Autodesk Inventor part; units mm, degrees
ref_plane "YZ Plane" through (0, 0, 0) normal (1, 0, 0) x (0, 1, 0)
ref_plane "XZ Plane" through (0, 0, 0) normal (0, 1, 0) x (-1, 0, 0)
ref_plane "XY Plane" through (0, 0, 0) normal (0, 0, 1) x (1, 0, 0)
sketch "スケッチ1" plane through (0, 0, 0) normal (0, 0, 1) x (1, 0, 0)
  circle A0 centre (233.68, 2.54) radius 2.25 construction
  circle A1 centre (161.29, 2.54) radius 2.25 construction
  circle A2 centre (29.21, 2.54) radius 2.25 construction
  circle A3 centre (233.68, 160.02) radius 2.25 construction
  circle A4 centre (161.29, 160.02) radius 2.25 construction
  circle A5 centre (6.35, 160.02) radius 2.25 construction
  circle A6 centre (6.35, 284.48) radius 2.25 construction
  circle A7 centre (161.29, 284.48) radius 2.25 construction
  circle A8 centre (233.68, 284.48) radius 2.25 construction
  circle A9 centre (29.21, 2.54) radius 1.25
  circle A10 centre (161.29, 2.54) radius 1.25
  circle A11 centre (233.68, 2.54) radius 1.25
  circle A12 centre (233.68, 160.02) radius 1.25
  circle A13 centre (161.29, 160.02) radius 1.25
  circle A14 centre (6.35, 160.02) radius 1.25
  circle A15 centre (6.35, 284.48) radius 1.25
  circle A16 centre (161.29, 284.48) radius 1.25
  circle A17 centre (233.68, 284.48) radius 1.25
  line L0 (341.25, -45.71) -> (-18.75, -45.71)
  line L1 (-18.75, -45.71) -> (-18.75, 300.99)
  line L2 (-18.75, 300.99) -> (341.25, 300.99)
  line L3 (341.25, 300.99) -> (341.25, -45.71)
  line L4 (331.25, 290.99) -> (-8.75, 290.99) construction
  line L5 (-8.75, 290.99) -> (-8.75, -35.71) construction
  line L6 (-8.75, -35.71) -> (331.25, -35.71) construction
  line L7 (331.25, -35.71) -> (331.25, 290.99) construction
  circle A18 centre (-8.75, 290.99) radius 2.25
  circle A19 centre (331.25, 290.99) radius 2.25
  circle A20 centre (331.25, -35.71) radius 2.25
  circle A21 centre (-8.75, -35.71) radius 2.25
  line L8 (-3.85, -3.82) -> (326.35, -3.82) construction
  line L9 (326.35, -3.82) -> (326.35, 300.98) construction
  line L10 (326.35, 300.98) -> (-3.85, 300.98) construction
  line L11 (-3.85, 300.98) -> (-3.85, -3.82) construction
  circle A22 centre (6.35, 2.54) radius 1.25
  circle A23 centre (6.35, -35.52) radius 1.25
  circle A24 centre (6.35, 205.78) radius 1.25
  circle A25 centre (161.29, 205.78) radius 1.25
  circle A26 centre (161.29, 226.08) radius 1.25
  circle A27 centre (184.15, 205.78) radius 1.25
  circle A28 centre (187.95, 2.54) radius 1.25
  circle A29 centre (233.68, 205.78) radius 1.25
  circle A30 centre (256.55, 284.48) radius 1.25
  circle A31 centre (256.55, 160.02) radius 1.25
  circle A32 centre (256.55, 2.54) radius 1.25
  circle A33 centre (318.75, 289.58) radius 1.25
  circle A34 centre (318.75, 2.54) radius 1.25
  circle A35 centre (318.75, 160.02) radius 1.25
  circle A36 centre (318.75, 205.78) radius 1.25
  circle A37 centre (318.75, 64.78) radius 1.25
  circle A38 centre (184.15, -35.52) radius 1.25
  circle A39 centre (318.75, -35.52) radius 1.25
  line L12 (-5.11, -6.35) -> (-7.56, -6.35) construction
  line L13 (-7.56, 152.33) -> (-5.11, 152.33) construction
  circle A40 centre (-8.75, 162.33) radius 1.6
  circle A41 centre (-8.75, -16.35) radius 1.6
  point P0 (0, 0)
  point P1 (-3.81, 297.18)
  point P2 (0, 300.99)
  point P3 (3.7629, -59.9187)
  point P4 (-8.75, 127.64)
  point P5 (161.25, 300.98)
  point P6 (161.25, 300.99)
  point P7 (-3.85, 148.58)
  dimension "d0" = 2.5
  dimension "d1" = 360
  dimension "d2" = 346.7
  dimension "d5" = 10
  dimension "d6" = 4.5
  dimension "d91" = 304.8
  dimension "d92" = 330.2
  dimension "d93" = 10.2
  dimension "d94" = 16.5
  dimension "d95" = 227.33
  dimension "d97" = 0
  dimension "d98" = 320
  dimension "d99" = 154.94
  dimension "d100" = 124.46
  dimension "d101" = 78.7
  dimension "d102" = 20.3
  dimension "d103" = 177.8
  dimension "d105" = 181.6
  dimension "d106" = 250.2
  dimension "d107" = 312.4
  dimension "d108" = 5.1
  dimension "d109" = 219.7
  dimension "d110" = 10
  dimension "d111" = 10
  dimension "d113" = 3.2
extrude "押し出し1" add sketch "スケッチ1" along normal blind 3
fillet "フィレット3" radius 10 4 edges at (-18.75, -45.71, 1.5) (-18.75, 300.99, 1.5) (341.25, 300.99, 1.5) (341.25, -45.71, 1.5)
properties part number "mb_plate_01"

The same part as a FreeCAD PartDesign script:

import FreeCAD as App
import Part
import Sketcher

V = App.Vector
Q = App.Units.Quantity


def edges_at(feature, points):
    """Names of the edges that pass closest to the given points."""
    edges = feature.Shape.Edges
    near = lambda p: min(range(len(edges)), key=lambda i: edges[i].distToShape(Part.Vertex(*p))[0])
    return sorted({f"Edge{near(p) + 1}" for p in points})

doc = App.newDocument("Part")
body = doc.addObject("PartDesign::Body", "Body")

# Sketch on XY plane
sketch1 = body.newObject("Sketcher::SketchObject", "Sketch")
sketch1.AttachmentSupport = (doc.getObject("XY_Plane"), [""])
sketch1.MapMode = "FlatFace"
sketch1.addGeometry(Part.LineSegment(V(-18.8, -45.7, 0), V(341.2, -45.7, 0)), False)
sketch1.addGeometry(Part.LineSegment(V(341.2, -45.7, 0), V(341.2, 301, 0)), False)
sketch1.addGeometry(Part.LineSegment(V(341.2, 301, 0), V(-18.8, 301, 0)), False)
sketch1.addGeometry(Part.LineSegment(V(-18.8, 301, 0), V(-18.8, -45.7, 0)), False)
sketch1.addGeometry(Part.Circle(V(-8.8, -35.7, 0), V(0, 0, 1), 2.2), False)
sketch1.addGeometry(Part.Circle(V(6.3, -35.5, 0), V(0, 0, 1), 1.2), False)
sketch1.addGeometry(Part.Circle(V(-8.8, -16.4, 0), V(0, 0, 1), 1.6), False)
sketch1.addGeometry(Part.Circle(V(6.3, 2.5, 0), V(0, 0, 1), 1.2), False)
sketch1.addGeometry(Part.Circle(V(29.2, 2.5, 0), V(0, 0, 1), 1.2), False)
sketch1.addGeometry(Part.Circle(V(184.2, -35.5, 0), V(0, 0, 1), 1.2), False)
sketch1.addGeometry(Part.Circle(V(161.3, 2.5, 0), V(0, 0, 1), 1.2), False)
sketch1.addGeometry(Part.Circle(V(187.9, 2.5, 0), V(0, 0, 1), 1.2), False)
sketch1.addGeometry(Part.Circle(V(233.7, 2.5, 0), V(0, 0, 1), 1.2), False)
sketch1.addGeometry(Part.Circle(V(318.8, -35.5, 0), V(0, 0, 1), 1.2), False)
sketch1.addGeometry(Part.Circle(V(331.2, -35.7, 0), V(0, 0, 1), 2.2), False)
sketch1.addGeometry(Part.Circle(V(256.6, 2.5, 0), V(0, 0, 1), 1.2), False)
sketch1.addGeometry(Part.Circle(V(318.8, 2.5, 0), V(0, 0, 1), 1.2), False)
sketch1.addGeometry(Part.Circle(V(318.8, 64.8, 0), V(0, 0, 1), 1.2), False)
sketch1.addGeometry(Part.Circle(V(-8.8, 162.3, 0), V(0, 0, 1), 1.6), False)
sketch1.addGeometry(Part.Circle(V(6.3, 160, 0), V(0, 0, 1), 1.2), False)
sketch1.addGeometry(Part.Circle(V(6.3, 205.8, 0), V(0, 0, 1), 1.2), False)
sketch1.addGeometry(Part.Circle(V(-8.8, 291, 0), V(0, 0, 1), 2.2), False)
sketch1.addGeometry(Part.Circle(V(6.3, 284.5, 0), V(0, 0, 1), 1.2), False)
sketch1.addGeometry(Part.Circle(V(161.3, 160, 0), V(0, 0, 1), 1.2), False)
sketch1.addGeometry(Part.Circle(V(233.7, 160, 0), V(0, 0, 1), 1.2), False)
sketch1.addGeometry(Part.Circle(V(161.3, 205.8, 0), V(0, 0, 1), 1.2), False)
sketch1.addGeometry(Part.Circle(V(184.2, 205.8, 0), V(0, 0, 1), 1.2), False)
sketch1.addGeometry(Part.Circle(V(233.7, 205.8, 0), V(0, 0, 1), 1.2), False)
sketch1.addGeometry(Part.Circle(V(256.6, 160, 0), V(0, 0, 1), 1.2), False)
sketch1.addGeometry(Part.Circle(V(318.8, 160, 0), V(0, 0, 1), 1.2), False)
sketch1.addGeometry(Part.Circle(V(318.8, 205.8, 0), V(0, 0, 1), 1.2), False)
sketch1.addGeometry(Part.Circle(V(161.3, 226.1, 0), V(0, 0, 1), 1.2), False)
sketch1.addGeometry(Part.Circle(V(161.3, 284.5, 0), V(0, 0, 1), 1.2), False)
sketch1.addGeometry(Part.Circle(V(233.7, 284.5, 0), V(0, 0, 1), 1.2), False)
sketch1.addGeometry(Part.Circle(V(256.6, 284.5, 0), V(0, 0, 1), 1.2), False)
sketch1.addGeometry(Part.Circle(V(318.8, 289.6, 0), V(0, 0, 1), 1.2), False)
sketch1.addGeometry(Part.Circle(V(331.2, 291, 0), V(0, 0, 1), 2.2), False)
sketch1.addConstraint(Sketcher.Constraint("Coincident", 0, 2, 1, 1))
sketch1.addConstraint(Sketcher.Constraint("Coincident", 1, 2, 2, 1))
sketch1.addConstraint(Sketcher.Constraint("Coincident", 2, 2, 3, 1))
sketch1.addConstraint(Sketcher.Constraint("Coincident", 3, 2, 0, 1))
sketch1.addConstraint(Sketcher.Constraint("Horizontal", 0))
sketch1.addConstraint(Sketcher.Constraint("Vertical", 1))
sketch1.addConstraint(Sketcher.Constraint("Horizontal", 2))
sketch1.addConstraint(Sketcher.Constraint("Vertical", 3))
sketch1.addConstraint(Sketcher.Constraint("Equal", 5, 7))
sketch1.addConstraint(Sketcher.Constraint("Equal", 7, 8))
sketch1.addConstraint(Sketcher.Constraint("Equal", 8, 9))
sketch1.addConstraint(Sketcher.Constraint("Equal", 9, 10))
sketch1.addConstraint(Sketcher.Constraint("Equal", 10, 11))
sketch1.addConstraint(Sketcher.Constraint("Equal", 11, 12))
sketch1.addConstraint(Sketcher.Constraint("Equal", 12, 13))
sketch1.addConstraint(Sketcher.Constraint("Equal", 4, 14))
sketch1.addConstraint(Sketcher.Constraint("Equal", 13, 15))
sketch1.addConstraint(Sketcher.Constraint("Equal", 15, 16))
sketch1.addConstraint(Sketcher.Constraint("Equal", 16, 17))
sketch1.addConstraint(Sketcher.Constraint("Equal", 6, 18))
sketch1.addConstraint(Sketcher.Constraint("Equal", 17, 19))
sketch1.addConstraint(Sketcher.Constraint("Equal", 19, 20))
sketch1.addConstraint(Sketcher.Constraint("Equal", 14, 21))
sketch1.addConstraint(Sketcher.Constraint("Equal", 20, 22))
sketch1.addConstraint(Sketcher.Constraint("Equal", 22, 23))
sketch1.addConstraint(Sketcher.Constraint("Equal", 23, 24))
sketch1.addConstraint(Sketcher.Constraint("Equal", 24, 25))
sketch1.addConstraint(Sketcher.Constraint("Equal", 25, 26))
sketch1.addConstraint(Sketcher.Constraint("Equal", 26, 27))
sketch1.addConstraint(Sketcher.Constraint("Equal", 27, 28))
sketch1.addConstraint(Sketcher.Constraint("Equal", 28, 29))
sketch1.addConstraint(Sketcher.Constraint("Equal", 29, 30))
sketch1.addConstraint(Sketcher.Constraint("Equal", 30, 31))
sketch1.addConstraint(Sketcher.Constraint("Equal", 31, 32))
sketch1.addConstraint(Sketcher.Constraint("Equal", 32, 33))
sketch1.addConstraint(Sketcher.Constraint("Equal", 33, 34))
sketch1.addConstraint(Sketcher.Constraint("Equal", 34, 35))
sketch1.addConstraint(Sketcher.Constraint("Equal", 21, 36))
sketch1.addConstraint(Sketcher.Constraint("Horizontal", 7, 3, 8, 3))
sketch1.addConstraint(Sketcher.Constraint("Horizontal", 5, 3, 9, 3))
sketch1.addConstraint(Sketcher.Constraint("Horizontal", 8, 3, 10, 3))
sketch1.addConstraint(Sketcher.Constraint("Horizontal", 10, 3, 11, 3))
sketch1.addConstraint(Sketcher.Constraint("Horizontal", 11, 3, 12, 3))
sketch1.addConstraint(Sketcher.Constraint("Horizontal", 9, 3, 13, 3))
sketch1.addConstraint(Sketcher.Constraint("Horizontal", 4, 3, 14, 3))
sketch1.addConstraint(Sketcher.Constraint("Horizontal", 12, 3, 15, 3))
sketch1.addConstraint(Sketcher.Constraint("Horizontal", 15, 3, 16, 3))
sketch1.addConstraint(Sketcher.Constraint("Horizontal", 19, 3, 23, 3))
sketch1.addConstraint(Sketcher.Constraint("Horizontal", 23, 3, 24, 3))
sketch1.addConstraint(Sketcher.Constraint("Horizontal", 20, 3, 25, 3))
sketch1.addConstraint(Sketcher.Constraint("Horizontal", 25, 3, 26, 3))
sketch1.addConstraint(Sketcher.Constraint("Horizontal", 26, 3, 27, 3))
sketch1.addConstraint(Sketcher.Constraint("Horizontal", 24, 3, 28, 3))
sketch1.addConstraint(Sketcher.Constraint("Horizontal", 28, 3, 29, 3))
sketch1.addConstraint(Sketcher.Constraint("Horizontal", 27, 3, 30, 3))
sketch1.addConstraint(Sketcher.Constraint("Horizontal", 22, 3, 32, 3))
sketch1.addConstraint(Sketcher.Constraint("Horizontal", 32, 3, 33, 3))
sketch1.addConstraint(Sketcher.Constraint("Horizontal", 33, 3, 34, 3))
sketch1.addConstraint(Sketcher.Constraint("Horizontal", 21, 3, 36, 3))
sketch1.addConstraint(Sketcher.Constraint("Vertical", 4, 3, 6, 3))
sketch1.addConstraint(Sketcher.Constraint("Vertical", 5, 3, 7, 3))
sketch1.addConstraint(Sketcher.Constraint("Vertical", 13, 3, 16, 3))
sketch1.addConstraint(Sketcher.Constraint("Vertical", 16, 3, 17, 3))
sketch1.addConstraint(Sketcher.Constraint("Vertical", 6, 3, 18, 3))
sketch1.addConstraint(Sketcher.Constraint("Vertical", 7, 3, 19, 3))
sketch1.addConstraint(Sketcher.Constraint("Vertical", 19, 3, 20, 3))
sketch1.addConstraint(Sketcher.Constraint("Vertical", 18, 3, 21, 3))
sketch1.addConstraint(Sketcher.Constraint("Vertical", 20, 3, 22, 3))
sketch1.addConstraint(Sketcher.Constraint("Vertical", 10, 3, 23, 3))
sketch1.addConstraint(Sketcher.Constraint("Vertical", 12, 3, 24, 3))
sketch1.addConstraint(Sketcher.Constraint("Vertical", 23, 3, 25, 3))
sketch1.addConstraint(Sketcher.Constraint("Vertical", 9, 3, 26, 3))
sketch1.addConstraint(Sketcher.Constraint("Vertical", 24, 3, 27, 3))
sketch1.addConstraint(Sketcher.Constraint("Vertical", 15, 3, 28, 3))
sketch1.addConstraint(Sketcher.Constraint("Vertical", 17, 3, 29, 3))
sketch1.addConstraint(Sketcher.Constraint("Vertical", 29, 3, 30, 3))
sketch1.addConstraint(Sketcher.Constraint("Vertical", 25, 3, 31, 3))
sketch1.addConstraint(Sketcher.Constraint("Vertical", 31, 3, 32, 3))
sketch1.addConstraint(Sketcher.Constraint("Vertical", 27, 3, 33, 3))
sketch1.addConstraint(Sketcher.Constraint("Vertical", 28, 3, 34, 3))
sketch1.addConstraint(Sketcher.Constraint("Vertical", 30, 3, 35, 3))
sketch1.addConstraint(Sketcher.Constraint("Vertical", 14, 3, 36, 3))
sketch1.addConstraint(Sketcher.Constraint("Diameter", 4, Q("4.5 mm")))
sketch1.addConstraint(Sketcher.Constraint("Diameter", 5, Q("2.5 mm")))
sketch1.addConstraint(Sketcher.Constraint("Diameter", 6, Q("3.2 mm")))
sketch1.addConstraint(Sketcher.Constraint("DistanceX", 0, 1, 0, 2, Q("360 mm")))
sketch1.addConstraint(Sketcher.Constraint("DistanceY", 1, 1, 1, 2, Q("346.7 mm")))
sketch1.addConstraint(Sketcher.Constraint("DistanceX", 14, 3, 0, 2, Q("10 mm")))
sketch1.addConstraint(Sketcher.Constraint("DistanceY", 0, 2, 14, 3, Q("10 mm")))
sketch1.addConstraint(Sketcher.Constraint("DistanceY", 36, 3, 1, 2, Q("10 mm")))
sketch1.addConstraint(Sketcher.Constraint("DistanceX", 2, 2, 21, 3, Q("10 mm")))
sketch1.addConstraint(Sketcher.Constraint("DistanceX", 5, 3, 9, 3, Q("177.8 mm")))
sketch1.addConstraint(Sketcher.Constraint("DistanceX", 7, 3, 11, 3, Q("181.6 mm")))
sketch1.addConstraint(Sketcher.Constraint("DistanceY", 20, 3, 22, 3, Q("78.7 mm")))
sketch1.addConstraint(Sketcher.Constraint("DistanceY", 25, 3, 31, 3, Q("20.3 mm")))
sketch1.addConstraint(Sketcher.Constraint("DistanceY", 34, 3, 35, 3, Q("5.1 mm")))
sketch1.addConstraint(Sketcher.Constraint("DistanceX", 8, 3, 9, 3, Q("154.94 mm")))
sketch1.addConstraint(Sketcher.Constraint("DistanceX", 7, 3, 10, 3, Q("154.94 mm")))
sketch1.addConstraint(Sketcher.Constraint("DistanceX", 7, 3, 12, 3, Q("227.33 mm")))
sketch1.addConstraint(Sketcher.Constraint("DistanceY", 19, 3, 22, 3, Q("124.46 mm")))
sketch1.addConstraint(Sketcher.Constraint("DistanceY", 17, 3, 27, 3, Q("141 mm")))
sketch1.addConstraint(Sketcher.Constraint("DistanceX", 4, 3, 5, 3, Q("15.1 mm")))
sketch1.addConstraint(Sketcher.Constraint("DistanceX", 9, 3, 13, 3, Q("134.6 mm")))
sketch1.addConstraint(Sketcher.Constraint("DistanceX", 11, 3, 15, 3, Q("68.6 mm")))
sketch1.addConstraint(Sketcher.Constraint("DistanceY", 13, 3, 17, 3, Q("100.3 mm")))
sketch1.addConstraint(Sketcher.Constraint("DistanceX", 4, 3, -1, 1, Q("8.75 mm")))
sketch1.addConstraint(Sketcher.Constraint("DistanceY", 4, 3, -1, 1, Q("35.71 mm")))
sketch1.addConstraint(Sketcher.Constraint("DistanceY", 5, 3, -1, 1, Q("35.52 mm")))
sketch1.addConstraint(Sketcher.Constraint("DistanceY", 6, 3, -1, 1, Q("16.35 mm")))
sketch1.addConstraint(Sketcher.Constraint("DistanceY", -1, 1, 7, 3, Q("2.54 mm")))
sketch1.addConstraint(Sketcher.Constraint("DistanceY", -1, 1, 18, 3, Q("162.33 mm")))
pad1 = body.newObject("PartDesign::Pad", "Pad")
pad1.Profile = sketch1
pad1.Length = 3
doc.recompute()

fillet = body.newObject("PartDesign::Fillet", "Fillet")
fillet.Base = (pad1, edges_at(pad1, [
    (-18.75, -45.71, 1.5),
    (-18.75, 300.99, 1.5),
    (341.25, 300.99, 1.5),
    (341.25, -45.71, 1.5),
]))
fillet.Radius = 10

doc.recompute()
